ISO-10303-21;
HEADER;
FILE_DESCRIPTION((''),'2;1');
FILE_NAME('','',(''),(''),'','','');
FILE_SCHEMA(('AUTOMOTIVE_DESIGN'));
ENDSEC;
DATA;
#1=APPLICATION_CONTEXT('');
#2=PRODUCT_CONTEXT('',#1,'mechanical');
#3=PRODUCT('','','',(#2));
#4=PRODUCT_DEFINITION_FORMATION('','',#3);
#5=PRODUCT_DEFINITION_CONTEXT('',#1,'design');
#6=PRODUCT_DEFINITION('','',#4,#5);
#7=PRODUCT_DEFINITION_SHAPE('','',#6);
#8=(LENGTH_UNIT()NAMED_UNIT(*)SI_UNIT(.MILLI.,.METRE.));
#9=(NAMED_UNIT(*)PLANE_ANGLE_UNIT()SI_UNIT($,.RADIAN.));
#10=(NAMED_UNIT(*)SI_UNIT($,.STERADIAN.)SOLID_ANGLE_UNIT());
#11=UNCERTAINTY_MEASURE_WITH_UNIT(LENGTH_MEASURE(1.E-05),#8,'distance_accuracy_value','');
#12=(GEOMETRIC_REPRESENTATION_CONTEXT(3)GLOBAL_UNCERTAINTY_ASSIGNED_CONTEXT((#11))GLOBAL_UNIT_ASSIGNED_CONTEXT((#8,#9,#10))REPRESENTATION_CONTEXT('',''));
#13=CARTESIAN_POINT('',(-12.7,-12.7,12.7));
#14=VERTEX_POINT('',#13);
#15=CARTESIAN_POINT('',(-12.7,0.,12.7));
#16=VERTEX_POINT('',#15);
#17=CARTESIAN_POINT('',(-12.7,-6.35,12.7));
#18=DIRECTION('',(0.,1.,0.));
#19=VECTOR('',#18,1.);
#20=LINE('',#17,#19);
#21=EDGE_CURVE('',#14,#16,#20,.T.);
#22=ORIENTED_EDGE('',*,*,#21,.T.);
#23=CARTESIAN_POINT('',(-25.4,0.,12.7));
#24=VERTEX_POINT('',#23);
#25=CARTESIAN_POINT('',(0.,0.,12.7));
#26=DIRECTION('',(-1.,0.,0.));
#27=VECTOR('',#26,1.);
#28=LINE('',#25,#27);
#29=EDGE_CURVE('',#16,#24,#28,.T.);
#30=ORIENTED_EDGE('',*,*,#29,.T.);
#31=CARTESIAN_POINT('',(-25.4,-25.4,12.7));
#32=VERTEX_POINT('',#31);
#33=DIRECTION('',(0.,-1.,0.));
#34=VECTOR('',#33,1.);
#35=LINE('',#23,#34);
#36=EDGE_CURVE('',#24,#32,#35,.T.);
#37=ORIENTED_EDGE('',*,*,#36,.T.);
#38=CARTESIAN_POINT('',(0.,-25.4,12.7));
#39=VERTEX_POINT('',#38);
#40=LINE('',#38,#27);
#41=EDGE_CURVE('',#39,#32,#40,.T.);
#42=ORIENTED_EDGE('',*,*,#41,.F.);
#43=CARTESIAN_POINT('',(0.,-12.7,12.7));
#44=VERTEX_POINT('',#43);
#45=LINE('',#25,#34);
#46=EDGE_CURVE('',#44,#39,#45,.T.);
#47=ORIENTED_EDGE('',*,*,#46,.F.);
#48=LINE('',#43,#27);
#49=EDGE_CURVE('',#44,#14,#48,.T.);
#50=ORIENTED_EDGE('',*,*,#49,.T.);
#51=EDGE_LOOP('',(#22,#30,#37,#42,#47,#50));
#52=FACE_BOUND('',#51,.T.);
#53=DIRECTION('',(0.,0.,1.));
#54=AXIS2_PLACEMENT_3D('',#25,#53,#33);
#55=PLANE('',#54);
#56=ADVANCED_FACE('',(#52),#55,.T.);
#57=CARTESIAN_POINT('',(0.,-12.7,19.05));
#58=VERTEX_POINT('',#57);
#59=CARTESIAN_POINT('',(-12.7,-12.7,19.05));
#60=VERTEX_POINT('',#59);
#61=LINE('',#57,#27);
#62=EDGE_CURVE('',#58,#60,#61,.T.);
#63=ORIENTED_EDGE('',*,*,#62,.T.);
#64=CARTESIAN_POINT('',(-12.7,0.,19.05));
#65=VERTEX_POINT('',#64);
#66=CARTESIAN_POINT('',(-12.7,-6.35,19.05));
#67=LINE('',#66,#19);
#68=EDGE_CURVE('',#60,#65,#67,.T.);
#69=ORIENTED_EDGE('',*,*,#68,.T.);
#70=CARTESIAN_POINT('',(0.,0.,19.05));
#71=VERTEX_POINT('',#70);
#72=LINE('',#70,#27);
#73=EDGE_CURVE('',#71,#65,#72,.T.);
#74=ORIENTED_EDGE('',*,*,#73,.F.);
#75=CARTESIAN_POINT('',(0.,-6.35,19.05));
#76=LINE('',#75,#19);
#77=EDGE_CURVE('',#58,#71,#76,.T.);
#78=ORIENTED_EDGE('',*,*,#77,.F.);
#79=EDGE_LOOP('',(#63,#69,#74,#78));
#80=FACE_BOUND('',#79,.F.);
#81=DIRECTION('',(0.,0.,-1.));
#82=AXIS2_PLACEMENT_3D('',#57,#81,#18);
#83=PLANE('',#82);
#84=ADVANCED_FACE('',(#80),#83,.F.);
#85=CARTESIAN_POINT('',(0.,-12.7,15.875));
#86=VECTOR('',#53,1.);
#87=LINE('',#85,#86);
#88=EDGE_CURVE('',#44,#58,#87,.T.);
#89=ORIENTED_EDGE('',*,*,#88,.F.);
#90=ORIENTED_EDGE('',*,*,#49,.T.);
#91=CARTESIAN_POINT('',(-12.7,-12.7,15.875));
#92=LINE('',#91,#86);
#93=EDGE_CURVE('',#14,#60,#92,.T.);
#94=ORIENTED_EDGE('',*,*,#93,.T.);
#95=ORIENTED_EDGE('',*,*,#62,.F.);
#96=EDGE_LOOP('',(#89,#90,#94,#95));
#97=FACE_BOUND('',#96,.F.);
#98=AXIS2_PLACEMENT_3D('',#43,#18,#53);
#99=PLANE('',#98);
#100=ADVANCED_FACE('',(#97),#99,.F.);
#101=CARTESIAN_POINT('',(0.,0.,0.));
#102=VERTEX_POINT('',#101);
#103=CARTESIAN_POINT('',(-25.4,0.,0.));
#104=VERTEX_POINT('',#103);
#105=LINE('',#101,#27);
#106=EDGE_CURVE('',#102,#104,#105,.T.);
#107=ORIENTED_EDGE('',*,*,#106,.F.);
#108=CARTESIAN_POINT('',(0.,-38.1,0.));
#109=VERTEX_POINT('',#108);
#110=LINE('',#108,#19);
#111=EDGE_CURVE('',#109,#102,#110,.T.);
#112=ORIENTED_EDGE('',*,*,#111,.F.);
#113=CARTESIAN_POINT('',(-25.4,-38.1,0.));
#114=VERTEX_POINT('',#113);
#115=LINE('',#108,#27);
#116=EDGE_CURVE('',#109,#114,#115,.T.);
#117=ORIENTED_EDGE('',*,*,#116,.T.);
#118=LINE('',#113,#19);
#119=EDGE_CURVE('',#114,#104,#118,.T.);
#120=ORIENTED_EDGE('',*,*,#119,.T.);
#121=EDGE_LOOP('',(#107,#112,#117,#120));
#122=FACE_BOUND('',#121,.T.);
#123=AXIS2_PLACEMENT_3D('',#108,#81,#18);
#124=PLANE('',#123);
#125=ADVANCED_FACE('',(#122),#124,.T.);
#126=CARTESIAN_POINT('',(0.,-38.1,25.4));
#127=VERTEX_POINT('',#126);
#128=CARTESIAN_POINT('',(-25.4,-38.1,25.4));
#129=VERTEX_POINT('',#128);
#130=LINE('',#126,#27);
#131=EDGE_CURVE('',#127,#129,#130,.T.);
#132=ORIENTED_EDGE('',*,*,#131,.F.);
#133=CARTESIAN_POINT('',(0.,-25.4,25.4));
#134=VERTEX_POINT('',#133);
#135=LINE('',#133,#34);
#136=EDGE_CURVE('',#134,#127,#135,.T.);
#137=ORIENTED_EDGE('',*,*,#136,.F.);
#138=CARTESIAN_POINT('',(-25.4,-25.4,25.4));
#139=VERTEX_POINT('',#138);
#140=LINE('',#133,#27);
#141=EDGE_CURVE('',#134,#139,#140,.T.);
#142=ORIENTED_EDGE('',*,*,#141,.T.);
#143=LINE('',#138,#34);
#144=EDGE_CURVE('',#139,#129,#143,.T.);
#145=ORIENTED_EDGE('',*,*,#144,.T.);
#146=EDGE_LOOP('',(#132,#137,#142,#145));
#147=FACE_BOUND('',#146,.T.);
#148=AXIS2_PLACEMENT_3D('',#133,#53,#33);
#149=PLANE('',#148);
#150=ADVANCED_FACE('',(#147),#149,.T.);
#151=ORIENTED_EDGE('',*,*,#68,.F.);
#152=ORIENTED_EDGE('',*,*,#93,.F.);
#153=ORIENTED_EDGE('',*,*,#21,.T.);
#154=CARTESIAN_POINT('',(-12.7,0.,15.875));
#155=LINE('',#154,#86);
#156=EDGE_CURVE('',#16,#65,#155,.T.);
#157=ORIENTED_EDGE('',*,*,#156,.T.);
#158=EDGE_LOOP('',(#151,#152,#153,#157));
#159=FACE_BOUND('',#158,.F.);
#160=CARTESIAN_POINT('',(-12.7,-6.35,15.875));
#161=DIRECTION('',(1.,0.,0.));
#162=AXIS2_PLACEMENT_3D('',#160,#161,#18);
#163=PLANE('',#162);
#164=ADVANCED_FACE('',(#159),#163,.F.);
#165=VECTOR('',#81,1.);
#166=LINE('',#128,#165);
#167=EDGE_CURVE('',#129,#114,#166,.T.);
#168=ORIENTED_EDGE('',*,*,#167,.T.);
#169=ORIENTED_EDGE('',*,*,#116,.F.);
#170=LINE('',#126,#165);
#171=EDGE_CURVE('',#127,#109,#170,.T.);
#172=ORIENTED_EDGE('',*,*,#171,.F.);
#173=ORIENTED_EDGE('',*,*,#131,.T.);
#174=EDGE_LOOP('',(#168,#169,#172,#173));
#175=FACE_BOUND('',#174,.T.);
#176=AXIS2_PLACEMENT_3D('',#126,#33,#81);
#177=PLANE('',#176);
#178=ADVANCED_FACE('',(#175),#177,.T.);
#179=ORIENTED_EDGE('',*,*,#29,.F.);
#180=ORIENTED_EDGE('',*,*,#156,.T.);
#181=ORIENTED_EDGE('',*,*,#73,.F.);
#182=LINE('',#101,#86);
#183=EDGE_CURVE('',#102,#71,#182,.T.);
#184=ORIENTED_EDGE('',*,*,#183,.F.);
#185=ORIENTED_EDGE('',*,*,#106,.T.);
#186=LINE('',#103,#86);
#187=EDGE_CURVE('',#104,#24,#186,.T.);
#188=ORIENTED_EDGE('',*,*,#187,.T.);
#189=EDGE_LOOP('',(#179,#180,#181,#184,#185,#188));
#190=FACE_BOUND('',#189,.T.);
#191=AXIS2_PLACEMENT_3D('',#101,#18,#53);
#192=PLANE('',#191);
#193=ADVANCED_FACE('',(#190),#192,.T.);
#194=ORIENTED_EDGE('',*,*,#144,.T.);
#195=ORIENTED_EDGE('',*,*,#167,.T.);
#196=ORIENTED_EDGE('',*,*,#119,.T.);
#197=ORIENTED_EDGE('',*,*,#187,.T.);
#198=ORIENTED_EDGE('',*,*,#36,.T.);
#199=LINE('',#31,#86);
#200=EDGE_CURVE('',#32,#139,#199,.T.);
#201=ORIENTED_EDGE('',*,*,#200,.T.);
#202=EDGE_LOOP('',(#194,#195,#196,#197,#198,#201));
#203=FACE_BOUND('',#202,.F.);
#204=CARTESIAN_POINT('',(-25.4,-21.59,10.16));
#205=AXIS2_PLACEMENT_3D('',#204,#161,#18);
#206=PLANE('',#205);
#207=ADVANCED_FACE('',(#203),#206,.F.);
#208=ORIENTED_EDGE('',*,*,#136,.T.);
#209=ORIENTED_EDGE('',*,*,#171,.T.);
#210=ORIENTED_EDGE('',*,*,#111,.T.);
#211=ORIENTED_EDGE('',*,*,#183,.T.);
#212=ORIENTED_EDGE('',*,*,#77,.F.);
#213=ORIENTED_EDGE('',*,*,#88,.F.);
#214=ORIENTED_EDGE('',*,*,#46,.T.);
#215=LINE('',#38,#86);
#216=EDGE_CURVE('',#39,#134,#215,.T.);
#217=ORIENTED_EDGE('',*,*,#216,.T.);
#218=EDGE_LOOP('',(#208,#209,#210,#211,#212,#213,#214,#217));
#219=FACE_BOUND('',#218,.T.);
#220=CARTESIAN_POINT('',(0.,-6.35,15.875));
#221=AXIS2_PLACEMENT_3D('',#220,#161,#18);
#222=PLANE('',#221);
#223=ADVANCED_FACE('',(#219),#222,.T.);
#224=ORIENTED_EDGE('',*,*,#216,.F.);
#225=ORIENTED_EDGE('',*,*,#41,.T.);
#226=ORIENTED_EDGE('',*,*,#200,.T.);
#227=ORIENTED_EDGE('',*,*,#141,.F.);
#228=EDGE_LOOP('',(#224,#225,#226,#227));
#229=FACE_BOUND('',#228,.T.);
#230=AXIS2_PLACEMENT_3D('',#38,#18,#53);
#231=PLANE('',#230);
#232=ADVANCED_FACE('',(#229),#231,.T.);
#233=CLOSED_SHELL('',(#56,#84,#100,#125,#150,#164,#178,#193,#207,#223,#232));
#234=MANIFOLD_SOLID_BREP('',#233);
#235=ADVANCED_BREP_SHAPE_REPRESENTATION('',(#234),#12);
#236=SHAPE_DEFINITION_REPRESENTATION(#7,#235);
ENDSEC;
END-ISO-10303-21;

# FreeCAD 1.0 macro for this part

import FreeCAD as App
import Part
import Sketcher
from FreeCAD import Vector
Q = App.Units.Quantity

doc = App.newDocument("Part")
body = doc.addObject("PartDesign::Body", "Body")

# Sketch on YZ plane
sketch1 = body.newObject("Sketcher::SketchObject", "Sketch")
sketch1.AttachmentSupport = (doc.getObject("YZ_Plane"), [""])
sketch1.MapMode = "FlatFace"
sketch1.addGeometry(Part.LineSegment(Vector(-25, 25, 0), Vector(-38, 25, 0)), False)
sketch1.addGeometry(Part.LineSegment(Vector(-38, 25, 0), Vector(-38, 0, 0)), False)
sketch1.addGeometry(Part.LineSegment(Vector(-38, 0, 0), Vector(0, 0, 0)), False)
sketch1.addGeometry(Part.LineSegment(Vector(0, 0, 0), Vector(0, 13, 0)), False)
sketch1.addGeometry(Part.LineSegment(Vector(0, 13, 0), Vector(-25, 13, 0)), False)
sketch1.addGeometry(Part.LineSegment(Vector(-25, 13, 0), Vector(-25, 25, 0)), False)
sketch1.addConstraint(Sketcher.Constraint("Coincident", 0, 2, 1, 1))
sketch1.addConstraint(Sketcher.Constraint("Coincident", 1, 2, 2, 1))
sketch1.addConstraint(Sketcher.Constraint("Coincident", 2, 2, 3, 1))
sketch1.addConstraint(Sketcher.Constraint("Coincident", 3, 2, 4, 1))
sketch1.addConstraint(Sketcher.Constraint("Coincident", 4, 2, 5, 1))
sketch1.addConstraint(Sketcher.Constraint("Coincident", 5, 2, 0, 1))
sketch1.addConstraint(Sketcher.Constraint("Horizontal", 0))
sketch1.addConstraint(Sketcher.Constraint("Vertical", 1))
sketch1.addConstraint(Sketcher.Constraint("Horizontal", 2))
sketch1.addConstraint(Sketcher.Constraint("Vertical", 3))
sketch1.addConstraint(Sketcher.Constraint("Horizontal", 4))
sketch1.addConstraint(Sketcher.Constraint("Vertical", 5))
sketch1.addConstraint(Sketcher.Constraint("Coincident", 2, 2, -1, 1))
sketch1.addConstraint(Sketcher.Constraint("Equal", 4, 1))
sketch1.addConstraint(Sketcher.Constraint("Equal", 0, 3))
sketch1.addConstraint(Sketcher.Constraint("Equal", 3, 5))
sketch1.addConstraint(Sketcher.Constraint("DistanceX", 4, 2, 4, 1, Q("1 in")))
pad1 = body.newObject("PartDesign::Pad", "Pad")
pad1.Profile = sketch1
pad1.Length = Q("1 in")
pad1.Reversed = True

# Sketch on YZ plane
sketch2 = body.newObject("Sketcher::SketchObject", "Sketch001")
sketch2.AttachmentSupport = (doc.getObject("YZ_Plane"), [""])
sketch2.MapMode = "FlatFace"
sketch2.addGeometry(Part.LineSegment(Vector(-13, 19, 0), Vector(-13, 13, 0)), False)
sketch2.addGeometry(Part.LineSegment(Vector(-13, 13, 0), Vector(0, 13, 0)), False)
sketch2.addGeometry(Part.LineSegment(Vector(0, 13, 0), Vector(0, 19, 0)), False)
sketch2.addGeometry(Part.LineSegment(Vector(0, 19, 0), Vector(-13, 19, 0)), False)
sketch2.addConstraint(Sketcher.Constraint("Coincident", 0, 2, 1, 1))
sketch2.addConstraint(Sketcher.Constraint("Coincident", 1, 2, 2, 1))
sketch2.addConstraint(Sketcher.Constraint("Coincident", 2, 2, 3, 1))
sketch2.addConstraint(Sketcher.Constraint("Coincident", 3, 2, 0, 1))
sketch2.addConstraint(Sketcher.Constraint("Vertical", 0))
sketch2.addConstraint(Sketcher.Constraint("Horizontal", 1))
sketch2.addConstraint(Sketcher.Constraint("Vertical", 2))
sketch2.addConstraint(Sketcher.Constraint("Horizontal", 3))
sketch2.addConstraint(Sketcher.Constraint("PointOnObject", 1, 2, -2))
sketch2.addConstraint(Sketcher.Constraint("DistanceX", 1, 1, 1, 2, Q("0.5 in")))
sketch2.addConstraint(Sketcher.Constraint("DistanceY", 0, 2, 0, 1, Q("0.25 in")))
sketch2.addConstraint(Sketcher.Constraint("DistanceY", -1, 1, 0, 2, Q("0.5 in")))
pad2 = body.newObject("PartDesign::Pad", "Pad001")
pad2.Profile = sketch2
pad2.Length = Q("0.5 in")
pad2.Reversed = True

doc.recompute()
